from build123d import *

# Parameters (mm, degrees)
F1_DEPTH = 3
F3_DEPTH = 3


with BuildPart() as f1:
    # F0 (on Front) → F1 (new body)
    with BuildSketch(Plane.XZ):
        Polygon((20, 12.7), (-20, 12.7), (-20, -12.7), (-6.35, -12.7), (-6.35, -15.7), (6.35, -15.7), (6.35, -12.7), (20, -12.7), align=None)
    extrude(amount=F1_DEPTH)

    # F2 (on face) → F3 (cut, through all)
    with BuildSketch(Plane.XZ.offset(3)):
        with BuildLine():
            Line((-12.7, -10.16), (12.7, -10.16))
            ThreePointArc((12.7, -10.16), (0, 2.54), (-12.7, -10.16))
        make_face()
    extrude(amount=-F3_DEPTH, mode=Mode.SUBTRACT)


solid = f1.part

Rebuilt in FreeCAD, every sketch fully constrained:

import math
import FreeCAD as App
import Part
import Sketcher

V = App.Vector
Q = App.Units.Quantity

doc = App.newDocument("Part")
body = doc.addObject("PartDesign::Body", "Body")

# Sketch on XZ plane
sketch1 = doc.addObject("Sketcher::SketchObject", "Sketch")
body.addObject(sketch1)
sketch1.AttachmentSupport = (doc.XZ_Plane, [""])
sketch1.MapMode = "FlatFace"
sketch1.addGeometry(Part.LineSegment(V(20, 12.7, 0), V(-20, 12.7, 0)), False)
sketch1.addGeometry(Part.LineSegment(V(-20, 12.7, 0), V(-20, -12.7, 0)), False)
sketch1.addGeometry(Part.LineSegment(V(-20, -12.7, 0), V(-6.3, -12.7, 0)), False)
sketch1.addGeometry(Part.LineSegment(V(-6.3, -12.7, 0), V(-6.3, -15.7, 0)), False)
sketch1.addGeometry(Part.LineSegment(V(-6.3, -15.7, 0), V(6.3, -15.7, 0)), False)
sketch1.addGeometry(Part.LineSegment(V(6.3, -15.7, 0), V(6.3, -12.7, 0)), False)
sketch1.addGeometry(Part.LineSegment(V(6.3, -12.7, 0), V(20, -12.7, 0)), False)
sketch1.addGeometry(Part.LineSegment(V(20, -12.7, 0), V(20, 12.7, 0)), False)
sketch1.addConstraint(Sketcher.Constraint("Coincident", 0, 2, 1, 1))
sketch1.addConstraint(Sketcher.Constraint("Coincident", 1, 2, 2, 1))
sketch1.addConstraint(Sketcher.Constraint("Coincident", 2, 2, 3, 1))
sketch1.addConstraint(Sketcher.Constraint("Coincident", 3, 2, 4, 1))
sketch1.addConstraint(Sketcher.Constraint("Coincident", 4, 2, 5, 1))
sketch1.addConstraint(Sketcher.Constraint("Coincident", 5, 2, 6, 1))
sketch1.addConstraint(Sketcher.Constraint("Coincident", 6, 2, 7, 1))
sketch1.addConstraint(Sketcher.Constraint("Coincident", 7, 2, 0, 1))
sketch1.addConstraint(Sketcher.Constraint("Horizontal", 0))
sketch1.addConstraint(Sketcher.Constraint("Vertical", 1))
sketch1.addConstraint(Sketcher.Constraint("Horizontal", 2))
sketch1.addConstraint(Sketcher.Constraint("Vertical", 3))
sketch1.addConstraint(Sketcher.Constraint("Horizontal", 4))
sketch1.addConstraint(Sketcher.Constraint("Vertical", 5))
sketch1.addConstraint(Sketcher.Constraint("Horizontal", 6))
sketch1.addConstraint(Sketcher.Constraint("Vertical", 7))
sketch1.addConstraint(Sketcher.Constraint("Symmetric", 0, 2, 6, 2, -1, 1))
sketch1.addConstraint(Sketcher.Constraint("Symmetric", 2, 2, 5, 2, -2))
sketch1.addConstraint(Sketcher.Constraint("DistanceX", 0, 2, 0, 1, Q("40 mm")))
sketch1.addConstraint(Sketcher.Constraint("DistanceY", 3, 2, 3, 1, Q("3 mm")))
sketch1.addConstraint(Sketcher.Constraint("DistanceX", 4, 1, 4, 2, Q("12.7 mm")))
sketch1.addConstraint(Sketcher.Constraint("DistanceY", 1, 2, 1, 1, Q("25.4 mm")))
pad1 = doc.addObject("PartDesign::Pad", "Pad")
body.addObject(pad1)
pad1.Profile = sketch1
pad1.Length = 3

# Sketch on XZ plane
sketch2 = doc.addObject("Sketcher::SketchObject", "Sketch001")
body.addObject(sketch2)
sketch2.AttachmentSupport = (doc.XZ_Plane, [""])
sketch2.MapMode = "FlatFace"
sketch2.AttachmentOffset = App.Placement(V(0, 0, 3), App.Rotation())
sketch2.addGeometry(Part.LineSegment(V(-13, -10, 0), V(13, -10, 0)), False)
sketch2.addGeometry(Part.ArcOfCircle(Part.Circle(V(0, -10, 0), V(0, 0, 1), 13), math.radians(0), math.radians(180)), False)
sketch2.addConstraint(Sketcher.Constraint("Coincident", 0, 1, 1, 2))
sketch2.addConstraint(Sketcher.Constraint("Coincident", 1, 1, 0, 2))
sketch2.addConstraint(Sketcher.Constraint("Horizontal", 0))
sketch2.addConstraint(Sketcher.Constraint("PointOnObject", 1, 3, -2))
sketch2.addConstraint(Sketcher.Constraint("Horizontal", 1, 3, 0, 1))
sketch2.addConstraint(Sketcher.Constraint("Radius", 1, Q("12.7 mm")))
sketch2.addConstraint(Sketcher.Constraint("DistanceY", 1, 3, -1, 1, Q("10.16 mm")))
pocket1 = doc.addObject("PartDesign::Pocket", "Pocket")
body.addObject(pocket1)
pocket1.Profile = sketch2
pocket1.Type = "ThroughAll"

doc.recompute()
